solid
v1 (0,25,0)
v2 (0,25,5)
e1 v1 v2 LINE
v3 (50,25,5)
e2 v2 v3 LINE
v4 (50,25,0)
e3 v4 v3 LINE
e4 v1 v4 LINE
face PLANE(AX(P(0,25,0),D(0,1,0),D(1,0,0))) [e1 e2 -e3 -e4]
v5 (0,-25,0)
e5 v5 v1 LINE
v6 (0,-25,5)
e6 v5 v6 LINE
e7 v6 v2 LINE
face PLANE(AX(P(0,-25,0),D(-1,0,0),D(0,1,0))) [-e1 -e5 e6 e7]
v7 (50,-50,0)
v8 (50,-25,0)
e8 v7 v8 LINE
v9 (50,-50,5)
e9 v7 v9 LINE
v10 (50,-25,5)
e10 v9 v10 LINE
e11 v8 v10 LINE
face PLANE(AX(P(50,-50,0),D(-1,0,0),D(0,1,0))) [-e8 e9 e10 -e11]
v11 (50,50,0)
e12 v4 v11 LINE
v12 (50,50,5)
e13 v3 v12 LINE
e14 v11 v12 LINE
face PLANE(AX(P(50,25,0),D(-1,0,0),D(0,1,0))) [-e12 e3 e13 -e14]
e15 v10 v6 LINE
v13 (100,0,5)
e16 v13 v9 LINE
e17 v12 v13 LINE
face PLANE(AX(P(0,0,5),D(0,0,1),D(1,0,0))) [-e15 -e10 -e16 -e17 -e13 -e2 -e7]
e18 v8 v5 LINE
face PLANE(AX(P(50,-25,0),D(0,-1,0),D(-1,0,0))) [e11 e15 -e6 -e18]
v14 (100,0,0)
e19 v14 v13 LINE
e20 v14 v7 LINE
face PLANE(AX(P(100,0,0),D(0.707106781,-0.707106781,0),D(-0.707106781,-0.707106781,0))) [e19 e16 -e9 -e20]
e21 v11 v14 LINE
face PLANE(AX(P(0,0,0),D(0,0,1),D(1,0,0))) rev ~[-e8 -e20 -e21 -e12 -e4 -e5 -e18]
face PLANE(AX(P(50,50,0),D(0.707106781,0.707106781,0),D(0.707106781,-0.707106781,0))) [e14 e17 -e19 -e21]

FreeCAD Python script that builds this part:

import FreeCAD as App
import Part
import Sketcher

V = App.Vector
Q = App.Units.Quantity


def add_polygon(sketch, points):
    """Adds a closed chain of lines whose ends are joined by coincident constraints."""
    first, n = sketch.GeometryCount, len(points)
    for a, b in zip(points, points[1:] + points[:1]):
        sketch.addGeometry(Part.LineSegment(App.Vector(*a, 0), App.Vector(*b, 0)), False)
    for i in range(n):
        sketch.addConstraint(Sketcher.Constraint("Coincident", first + i, 2, first + (i + 1) % n, 1))

doc = App.newDocument("Part")
params = doc.addObject("Spreadsheet::Sheet", "Params")
for row, (alias, value) in enumerate([
    ("sketch1_width", "50 mm"),
    ("pad1_length", "5 mm"),
], start=1):
    params.set(f"A{row}", alias)
    params.set(f"B{row}", "=" + value)
    params.setAlias(f"B{row}", alias)

body = doc.addObject("PartDesign::Body", "Body")

# Sketch on XY plane
sketch1 = body.newObject("Sketcher::SketchObject", "Sketch")
sketch1.AttachmentSupport = (doc.getObject("XY_Plane"), [""])
sketch1.MapMode = "FlatFace"
add_polygon(sketch1, [(50, 25), (0, 25), (0, -25), (50, -25), (50, -50), (100, 0), (50, 50)])  # lines 0-6
sketch1.addConstraint([
    Sketcher.Constraint("Horizontal", 0),
    Sketcher.Constraint("Vertical", 1),
    Sketcher.Constraint("Horizontal", 2),
    Sketcher.Constraint("Vertical", 3),
    Sketcher.Constraint("Vertical", 6),
    Sketcher.Constraint("Symmetric", 0, 2, 1, 2, -1, 1),
    Sketcher.Constraint("Symmetric", 3, 2, 5, 2, -1),
    Sketcher.Constraint("PointOnObject", 4, 2, -1),
    Sketcher.Constraint("Perpendicular", 4, 5),
    Sketcher.Constraint("Equal", 2, 1),
    Sketcher.Constraint("DistanceX", 0, 2, 0, 1, Q("50 mm")),
    Sketcher.Constraint("DistanceY", 3, 2, -1, 1, Q("50 mm")),
])
sketch1.setExpression("Constraints[17]", "Params.sketch1_width")
pad1 = body.newObject("PartDesign::Pad", "Pad")
pad1.Profile = sketch1
pad1.setExpression("Length", "Params.pad1_length")

doc.recompute()
